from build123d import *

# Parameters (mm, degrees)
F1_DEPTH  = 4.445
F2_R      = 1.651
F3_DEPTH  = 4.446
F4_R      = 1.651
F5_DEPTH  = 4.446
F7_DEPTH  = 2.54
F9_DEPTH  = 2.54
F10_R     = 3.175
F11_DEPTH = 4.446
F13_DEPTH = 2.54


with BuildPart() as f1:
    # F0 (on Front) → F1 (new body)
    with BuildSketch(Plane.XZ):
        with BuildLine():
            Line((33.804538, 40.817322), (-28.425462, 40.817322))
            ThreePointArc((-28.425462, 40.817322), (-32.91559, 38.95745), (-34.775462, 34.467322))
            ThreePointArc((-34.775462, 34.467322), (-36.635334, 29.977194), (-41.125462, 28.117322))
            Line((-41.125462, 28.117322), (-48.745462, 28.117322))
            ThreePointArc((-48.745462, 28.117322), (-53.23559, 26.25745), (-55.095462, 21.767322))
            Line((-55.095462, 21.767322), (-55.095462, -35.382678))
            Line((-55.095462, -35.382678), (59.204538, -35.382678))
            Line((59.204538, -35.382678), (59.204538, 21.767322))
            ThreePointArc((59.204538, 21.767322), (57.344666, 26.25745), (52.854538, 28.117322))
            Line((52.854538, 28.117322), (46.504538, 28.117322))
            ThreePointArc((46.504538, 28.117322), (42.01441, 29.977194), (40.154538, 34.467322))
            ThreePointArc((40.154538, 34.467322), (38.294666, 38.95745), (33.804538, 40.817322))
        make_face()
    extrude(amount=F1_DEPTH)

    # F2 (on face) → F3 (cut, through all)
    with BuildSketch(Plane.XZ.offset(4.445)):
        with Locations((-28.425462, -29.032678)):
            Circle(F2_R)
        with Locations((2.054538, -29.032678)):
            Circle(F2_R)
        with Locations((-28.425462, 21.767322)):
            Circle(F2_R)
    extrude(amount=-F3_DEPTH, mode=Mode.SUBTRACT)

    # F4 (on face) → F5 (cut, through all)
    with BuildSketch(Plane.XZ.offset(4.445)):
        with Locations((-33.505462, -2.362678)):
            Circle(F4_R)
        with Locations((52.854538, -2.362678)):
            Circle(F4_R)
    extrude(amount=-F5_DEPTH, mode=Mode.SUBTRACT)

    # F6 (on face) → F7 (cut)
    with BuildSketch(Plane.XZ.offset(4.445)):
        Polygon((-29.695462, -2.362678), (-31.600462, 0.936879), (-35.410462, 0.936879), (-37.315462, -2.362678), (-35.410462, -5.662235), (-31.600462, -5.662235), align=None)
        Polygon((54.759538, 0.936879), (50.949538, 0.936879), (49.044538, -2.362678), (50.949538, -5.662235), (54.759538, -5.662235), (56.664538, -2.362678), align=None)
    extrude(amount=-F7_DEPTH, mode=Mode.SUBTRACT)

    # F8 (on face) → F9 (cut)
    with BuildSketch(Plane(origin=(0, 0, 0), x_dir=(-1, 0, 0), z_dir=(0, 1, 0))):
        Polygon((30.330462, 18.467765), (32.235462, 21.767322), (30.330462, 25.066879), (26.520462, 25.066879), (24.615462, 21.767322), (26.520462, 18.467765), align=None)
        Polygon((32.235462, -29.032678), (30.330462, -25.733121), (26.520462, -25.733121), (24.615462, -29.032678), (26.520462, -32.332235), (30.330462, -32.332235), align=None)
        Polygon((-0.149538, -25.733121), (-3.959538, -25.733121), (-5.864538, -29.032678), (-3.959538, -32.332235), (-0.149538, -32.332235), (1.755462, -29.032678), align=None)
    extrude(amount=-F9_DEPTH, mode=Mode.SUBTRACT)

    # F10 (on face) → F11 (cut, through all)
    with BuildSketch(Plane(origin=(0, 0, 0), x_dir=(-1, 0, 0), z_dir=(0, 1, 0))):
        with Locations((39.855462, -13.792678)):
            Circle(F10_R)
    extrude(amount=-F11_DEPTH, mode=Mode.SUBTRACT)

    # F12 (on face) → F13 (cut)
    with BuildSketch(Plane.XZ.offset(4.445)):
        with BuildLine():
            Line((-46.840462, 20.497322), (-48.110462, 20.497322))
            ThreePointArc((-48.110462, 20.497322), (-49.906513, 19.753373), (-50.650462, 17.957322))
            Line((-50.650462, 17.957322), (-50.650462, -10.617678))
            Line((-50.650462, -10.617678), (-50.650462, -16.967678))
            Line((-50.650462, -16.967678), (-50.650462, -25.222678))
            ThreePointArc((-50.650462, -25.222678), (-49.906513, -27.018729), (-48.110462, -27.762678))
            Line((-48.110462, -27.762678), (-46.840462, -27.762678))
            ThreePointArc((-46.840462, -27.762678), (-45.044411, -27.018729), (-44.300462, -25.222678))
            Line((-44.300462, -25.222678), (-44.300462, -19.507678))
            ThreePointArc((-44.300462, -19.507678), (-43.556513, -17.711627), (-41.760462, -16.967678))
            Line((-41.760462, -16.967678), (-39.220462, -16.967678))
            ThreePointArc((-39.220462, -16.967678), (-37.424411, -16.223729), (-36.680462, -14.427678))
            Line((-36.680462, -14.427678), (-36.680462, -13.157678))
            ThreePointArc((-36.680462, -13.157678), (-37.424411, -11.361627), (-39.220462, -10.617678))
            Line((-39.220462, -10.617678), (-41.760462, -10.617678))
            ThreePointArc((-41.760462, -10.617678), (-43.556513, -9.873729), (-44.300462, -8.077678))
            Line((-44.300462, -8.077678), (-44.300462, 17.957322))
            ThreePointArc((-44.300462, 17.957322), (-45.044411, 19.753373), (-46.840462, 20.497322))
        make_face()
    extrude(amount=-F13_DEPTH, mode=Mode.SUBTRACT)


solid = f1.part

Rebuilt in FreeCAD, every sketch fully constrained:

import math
import FreeCAD as App
import Part
import Sketcher

V = App.Vector
Q = App.Units.Quantity

doc = App.newDocument("Part")
body = doc.addObject("PartDesign::Body", "Body")

# Sketch on XZ plane
sketch1 = doc.addObject("Sketcher::SketchObject", "Sketch")
body.addObject(sketch1)
sketch1.AttachmentSupport = (doc.XZ_Plane, [""])
sketch1.MapMode = "FlatFace"
sketch1.addGeometry([
    Part.LineSegment(V(34, 41, 0), V(-28, 41, 0)),  # 0
    Part.ArcOfCircle(Part.Circle(V(-28, 34, 0), V(0, 0, 1), 6), math.radians(90), math.radians(180)),  # 1
    Part.ArcOfCircle(Part.Circle(V(-41, 34, 0), V(0, 0, 1), 6), math.radians(-90), math.radians(0)),  # 2
    Part.LineSegment(V(-41, 28, 0), V(-49, 28, 0)),  # 3
    Part.ArcOfCircle(Part.Circle(V(-49, 22, 0), V(0, 0, 1), 6), math.radians(90), math.radians(180)),  # 4
    Part.LineSegment(V(-55, 22, 0), V(-55, -35, 0)),  # 5
    Part.LineSegment(V(-55, -35, 0), V(59, -35, 0)),  # 6
    Part.LineSegment(V(59, -35, 0), V(59, 22, 0)),  # 7
    Part.ArcOfCircle(Part.Circle(V(53, 22, 0), V(0, 0, 1), 6), math.radians(0), math.radians(90)),  # 8
    Part.LineSegment(V(53, 28, 0), V(47, 28, 0)),  # 9
    Part.ArcOfCircle(Part.Circle(V(47, 34, 0), V(0, 0, 1), 6), math.radians(-180), math.radians(-90)),  # 10
    Part.ArcOfCircle(Part.Circle(V(34, 34, 0), V(0, 0, 1), 6), math.radians(0), math.radians(90)),  # 11
], False)
sketch1.addConstraint([
    Sketcher.Constraint("Tangent", 0, 2, 1, 1),
    Sketcher.Constraint("Tangent", 1, 2, 2, 2),
    Sketcher.Constraint("Tangent", 2, 1, 3, 1),
    Sketcher.Constraint("Tangent", 3, 2, 4, 1),
    Sketcher.Constraint("Tangent", 4, 2, 5, 1),
    Sketcher.Constraint("Coincident", 5, 2, 6, 1),
    Sketcher.Constraint("Coincident", 6, 2, 7, 1),
    Sketcher.Constraint("Tangent", 7, 2, 8, 1),
    Sketcher.Constraint("Tangent", 8, 2, 9, 1),
    Sketcher.Constraint("Tangent", 9, 2, 10, 2),
    Sketcher.Constraint("Tangent", 10, 1, 11, 1),
    Sketcher.Constraint("Tangent", 11, 2, 0, 1),
    Sketcher.Constraint("Horizontal", 0),
    Sketcher.Constraint("Horizontal", 3),
    Sketcher.Constraint("Vertical", 5),
    Sketcher.Constraint("Horizontal", 6),
    Sketcher.Constraint("Vertical", 7),
    Sketcher.Constraint("Horizontal", 9),
    Sketcher.Constraint("Equal", 1, 2),
    Sketcher.Constraint("Equal", 2, 4),
    Sketcher.Constraint("Equal", 4, 8),
    Sketcher.Constraint("Equal", 8, 10),
    Sketcher.Constraint("Equal", 10, 11),
    Sketcher.Constraint("Horizontal", 1, 3, 2, 3),
    Sketcher.Constraint("Horizontal", 4, 3, 8, 3),
    Sketcher.Constraint("Radius", 1, Q("0.25 in")),
    Sketcher.Constraint("DistanceX", 3, 2, 3, 1, Q("0.3 in")),
    Sketcher.Constraint("DistanceX", 6, 1, 6, 2, Q("4.5 in")),
    Sketcher.Constraint("DistanceX", 11, 3, 6, 2, Q("1 in")),
    Sketcher.Constraint("DistanceY", 5, 2, 5, 1, Q("2.25 in")),
    Sketcher.Constraint("DistanceX", 1, 3, -1, 1, Q("28.425462 mm")),
    Sketcher.Constraint("DistanceY", -1, 1, 1, 3, Q("34.467322 mm")),
])
pad1 = doc.addObject("PartDesign::Pad", "Pad")
body.addObject(pad1)
pad1.Profile = sketch1
pad1.Length = Q("0.175 in")

# Sketch on XZ plane
sketch2 = doc.addObject("Sketcher::SketchObject", "Sketch001")
body.addObject(sketch2)
sketch2.AttachmentSupport = (doc.XZ_Plane, [""])
sketch2.MapMode = "FlatFace"
sketch2.AttachmentOffset = App.Placement(V(0, 0, 0.175 * 25.4), App.Rotation())
sketch2.addGeometry([
    Part.Circle(V(-28.4, -29, 0), V(0, 0, 1), 1.7),
    Part.Circle(V(2.1, -29, 0), V(0, 0, 1), 1.7),
    Part.Circle(V(-28.4, 21.8, 0), V(0, 0, 1), 1.7),
], False)
sketch2.addConstraint([
    Sketcher.Constraint("Equal", 0, 1),
    Sketcher.Constraint("Equal", 1, 2),
    Sketcher.Constraint("Horizontal", 0, 3, 1, 3),
    Sketcher.Constraint("Vertical", 0, 3, 2, 3),
    Sketcher.Constraint("Diameter", 0, Q("0.13 in")),
    Sketcher.Constraint("DistanceY", 0, 3, 2, 3, Q("2 in")),
    Sketcher.Constraint("DistanceX", 0, 3, 1, 3, Q("1.2 in")),
    Sketcher.Constraint("DistanceX", 0, 3, -1, 1, Q("28.425462 mm")),
    Sketcher.Constraint("DistanceY", 0, 3, -1, 1, Q("29.032678 mm")),
])
pocket1 = doc.addObject("PartDesign::Pocket", "Pocket")
body.addObject(pocket1)
pocket1.Profile = sketch2
pocket1.Type = "ThroughAll"

# Sketch on XZ plane
sketch3 = doc.addObject("Sketcher::SketchObject", "Sketch002")
body.addObject(sketch3)
sketch3.AttachmentSupport = (doc.XZ_Plane, [""])
sketch3.MapMode = "FlatFace"
sketch3.AttachmentOffset = App.Placement(V(0, 0, 0.175 * 25.4), App.Rotation())
sketch3.addGeometry([
    Part.Circle(V(-33.5, -2.4, 0), V(0, 0, 1), 1.7),
    Part.Circle(V(52.9, -2.4, 0), V(0, 0, 1), 1.7),
], False)
sketch3.addConstraint([
    Sketcher.Constraint("Equal", 0, 1),
    Sketcher.Constraint("Horizontal", 0, 3, 1, 3),
    Sketcher.Constraint("Diameter", 0, Q("0.13 in")),
    Sketcher.Constraint("DistanceX", 0, 3, 1, 3, Q("3.4 in")),
    Sketcher.Constraint("DistanceX", 0, 3, -1, 1, Q("33.505462 mm")),
    Sketcher.Constraint("DistanceY", 0, 3, -1, 1, Q("2.362678 mm")),
])
pocket2 = doc.addObject("PartDesign::Pocket", "Pocket001")
body.addObject(pocket2)
pocket2.Profile = sketch3
pocket2.Type = "ThroughAll"

# Sketch on XZ plane
sketch4 = doc.addObject("Sketcher::SketchObject", "Sketch003")
body.addObject(sketch4)
sketch4.AttachmentSupport = (doc.XZ_Plane, [""])
sketch4.MapMode = "FlatFace"
sketch4.AttachmentOffset = App.Placement(V(0, 0, 0.175 * 25.4), App.Rotation())
sketch4.addGeometry([
    Part.LineSegment(V(-29.7, -2.4, 0), V(-31.6, 0.9, 0)),  # 0
    Part.LineSegment(V(-31.6, 0.9, 0), V(-35.4, 0.9, 0)),  # 1
    Part.LineSegment(V(-35.4, 0.9, 0), V(-37.3, -2.4, 0)),  # 2
    Part.LineSegment(V(-37.3, -2.4, 0), V(-35.4, -5.7, 0)),  # 3
    Part.LineSegment(V(-35.4, -5.7, 0), V(-31.6, -5.7, 0)),  # 4
    Part.LineSegment(V(-31.6, -5.7, 0), V(-29.7, -2.4, 0)),  # 5
    Part.LineSegment(V(54.8, 0.9, 0), V(50.9, 0.9, 0)),  # 6
    Part.LineSegment(V(50.9, 0.9, 0), V(49, -2.4, 0)),  # 7
    Part.LineSegment(V(49, -2.4, 0), V(50.9, -5.7, 0)),  # 8
    Part.LineSegment(V(50.9, -5.7, 0), V(54.8, -5.7, 0)),  # 9
    Part.LineSegment(V(54.8, -5.7, 0), V(56.7, -2.4, 0)),  # 10
    Part.LineSegment(V(56.7, -2.4, 0), V(54.8, 0.9, 0)),  # 11
], False)
sketch4.addConstraint([
    Sketcher.Constraint("Coincident", 0, 2, 1, 1),
    Sketcher.Constraint("Coincident", 1, 2, 2, 1),
    Sketcher.Constraint("Coincident", 2, 2, 3, 1),
    Sketcher.Constraint("Coincident", 3, 2, 4, 1),
    Sketcher.Constraint("Coincident", 4, 2, 5, 1),
    Sketcher.Constraint("Coincident", 5, 2, 0, 1),
    Sketcher.Constraint("Coincident", 6, 2, 7, 1),
    Sketcher.Constraint("Coincident", 7, 2, 8, 1),
    Sketcher.Constraint("Coincident", 8, 2, 9, 1),
    Sketcher.Constraint("Coincident", 9, 2, 10, 1),
    Sketcher.Constraint("Coincident", 10, 2, 11, 1),
    Sketcher.Constraint("Coincident", 11, 2, 6, 1),
    Sketcher.Constraint("Horizontal", 1),
    Sketcher.Constraint("Horizontal", 4),
    Sketcher.Constraint("Horizontal", 6),
    Sketcher.Constraint("Horizontal", 9),
    Sketcher.Constraint("Parallel", 0, 3),
    Sketcher.Constraint("Parallel", 2, 5),
    Sketcher.Constraint("Parallel", 5, 7),
    Sketcher.Constraint("Parallel", 3, 8),
    Sketcher.Constraint("Parallel", 7, 10),
    Sketcher.Constraint("Parallel", 8, 11),
    Sketcher.Constraint("Horizontal", 2, 2, 5, 2),
    Sketcher.Constraint("Horizontal", 1, 2, 6, 2),
    Sketcher.Constraint("Horizontal", 5, 2, 7, 2),
    Sketcher.Constraint("Horizontal", 4, 2, 8, 2),
    Sketcher.Constraint("Horizontal", 7, 2, 10, 2),
    Sketcher.Constraint("Vertical", 1, 2, 3, 2),
    Sketcher.Constraint("Vertical", 0, 2, 4, 2),
    Sketcher.Constraint("Equal", 4, 6),
    Sketcher.Constraint("Angle", 0, Q("119.999998 deg")),
    Sketcher.Constraint("DistanceX", 1, 2, 1, 1, Q("0.15 in")),
    Sketcher.Constraint("DistanceX", 2, 2, 5, 2, Q("0.3 in")),
    Sketcher.Constraint("DistanceX", 1, 2, 6, 2, Q("3.4 in")),
    Sketcher.Constraint("DistanceX", 0, 2, -1, 1, Q("31.600462 mm")),
    Sketcher.Constraint("DistanceY", -1, 1, 0, 2, Q("0.936879 mm")),
])
pocket3 = doc.addObject("PartDesign::Pocket", "Pocket002")
body.addObject(pocket3)
pocket3.Profile = sketch4
pocket3.Length = Q("0.1 in")

# Sketch on XZ plane
sketch5 = doc.addObject("Sketcher::SketchObject", "Sketch004")
body.addObject(sketch5)
sketch5.AttachmentSupport = (doc.XZ_Plane, [""])
sketch5.MapMode = "FlatFace"
sketch5.addGeometry([
    Part.LineSegment(V(-30.3, 18.5, 0), V(-32.2, 21.8, 0)),  # 0
    Part.LineSegment(V(-32.2, 21.8, 0), V(-30.3, 25.1, 0)),  # 1
    Part.LineSegment(V(-30.3, 25.1, 0), V(-26.5, 25.1, 0)),  # 2
    Part.LineSegment(V(-26.5, 25.1, 0), V(-24.6, 21.8, 0)),  # 3
    Part.LineSegment(V(-24.6, 21.8, 0), V(-26.5, 18.5, 0)),  # 4
    Part.LineSegment(V(-26.5, 18.5, 0), V(-30.3, 18.5, 0)),  # 5
    Part.LineSegment(V(-32.2, -29, 0), V(-30.3, -25.7, 0)),  # 6
    Part.LineSegment(V(-30.3, -25.7, 0), V(-26.5, -25.7, 0)),  # 7
    Part.LineSegment(V(-26.5, -25.7, 0), V(-24.6, -29, 0)),  # 8
    Part.LineSegment(V(-24.6, -29, 0), V(-26.5, -32.3, 0)),  # 9
    Part.LineSegment(V(-26.5, -32.3, 0), V(-30.3, -32.3, 0)),  # 10
    Part.LineSegment(V(-30.3, -32.3, 0), V(-32.2, -29, 0)),  # 11
    Part.LineSegment(V(0.1, -25.7, 0), V(4, -25.7, 0)),  # 12
    Part.LineSegment(V(4, -25.7, 0), V(5.9, -29, 0)),  # 13
    Part.LineSegment(V(5.9, -29, 0), V(4, -32.3, 0)),  # 14
    Part.LineSegment(V(4, -32.3, 0), V(0.1, -32.3, 0)),  # 15
    Part.LineSegment(V(0.1, -32.3, 0), V(-1.8, -29, 0)),  # 16
    Part.LineSegment(V(-1.8, -29, 0), V(0.1, -25.7, 0)),  # 17
], False)
sketch5.addConstraint([
    Sketcher.Constraint("Coincident", 0, 2, 1, 1),
    Sketcher.Constraint("Coincident", 1, 2, 2, 1),
    Sketcher.Constraint("Coincident", 2, 2, 3, 1),
    Sketcher.Constraint("Coincident", 3, 2, 4, 1),
    Sketcher.Constraint("Coincident", 4, 2, 5, 1),
    Sketcher.Constraint("Coincident", 5, 2, 0, 1),
    Sketcher.Constraint("Coincident", 6, 2, 7, 1),
    Sketcher.Constraint("Coincident", 7, 2, 8, 1),
    Sketcher.Constraint("Coincident", 8, 2, 9, 1),
    Sketcher.Constraint("Coincident", 9, 2, 10, 1),
    Sketcher.Constraint("Coincident", 10, 2, 11, 1),
    Sketcher.Constraint("Coincident", 11, 2, 6, 1),
    Sketcher.Constraint("Coincident", 12, 2, 13, 1),
    Sketcher.Constraint("Coincident", 13, 2, 14, 1),
    Sketcher.Constraint("Coincident", 14, 2, 15, 1),
    Sketcher.Constraint("Coincident", 15, 2, 16, 1),
    Sketcher.Constraint("Coincident", 16, 2, 17, 1),
    Sketcher.Constraint("Coincident", 17, 2, 12, 1),
    Sketcher.Constraint("Horizontal", 2),
    Sketcher.Constraint("Horizontal", 5),
    Sketcher.Constraint("Horizontal", 7),
    Sketcher.Constraint("Horizontal", 10),
    Sketcher.Constraint("Horizontal", 12),
    Sketcher.Constraint("Horizontal", 15),
    Sketcher.Constraint("Parallel", 0, 3),
    Sketcher.Constraint("Parallel", 1, 4),
    Sketcher.Constraint("Parallel", 4, 6),
    Sketcher.Constraint("Parallel", 3, 8),
    Sketcher.Constraint("Parallel", 6, 9),
    Sketcher.Constraint("Parallel", 8, 11),
    Sketcher.Constraint("Parallel", 11, 13),
    Sketcher.Constraint("Parallel", 9, 14),
    Sketcher.Constraint("Parallel", 13, 16),
    Sketcher.Constraint("Parallel", 14, 17),
    Sketcher.Constraint("Horizontal", 0, 2, 3, 2),
    Sketcher.Constraint("Horizontal", 8, 2, 11, 2),
    Sketcher.Constraint("Horizontal", 7, 2, 12, 2),
    Sketcher.Constraint("Horizontal", 11, 2, 13, 2),
    Sketcher.Constraint("Horizontal", 10, 2, 14, 2),
    Sketcher.Constraint("Horizontal", 13, 2, 16, 2),
    Sketcher.Constraint("Vertical", 2, 2, 4, 2),
    Sketcher.Constraint("Vertical", 1, 2, 5, 2),
    Sketcher.Constraint("Vertical", 5, 2, 6, 2),
    Sketcher.Constraint("Vertical", 4, 2, 7, 2),
    Sketcher.Constraint("Vertical", 3, 2, 8, 2),
    Sketcher.Constraint("Vertical", 7, 2, 9, 2),
    Sketcher.Constraint("Equal", 10, 12),
    Sketcher.Constraint("Angle", 0, Q("119.999998 deg")),
    Sketcher.Constraint("DistanceY", 6, 2, 1, 2, Q("2 in")),
    Sketcher.Constraint("DistanceX", 2, 1, 2, 2, Q("0.15 in")),
    Sketcher.Constraint("DistanceX", 0, 2, 3, 2, Q("0.3 in")),
    Sketcher.Constraint("DistanceX", 7, 2, 12, 2, Q("1.2 in")),
    Sketcher.Constraint("DistanceX", 0, 2, -1, 1, Q("32.235462 mm")),
    Sketcher.Constraint("DistanceY", -1, 1, 0, 2, Q("21.767322 mm")),
])
pocket4 = doc.addObject("PartDesign::Pocket", "Pocket003")
body.addObject(pocket4)
pocket4.Profile = sketch5
pocket4.Length = Q("0.1 in")
pocket4.Reversed = True

# Sketch on XZ plane
sketch6 = doc.addObject("Sketcher::SketchObject", "Sketch005")
body.addObject(sketch6)
sketch6.AttachmentSupport = (doc.XZ_Plane, [""])
sketch6.MapMode = "FlatFace"
sketch6.addGeometry(Part.Circle(V(-39.9, -13.8, 0), V(0, 0, 1), 3.2), False)
sketch6.addConstraint([
    Sketcher.Constraint("Diameter", 0, Q("0.25 in")),
    Sketcher.Constraint("DistanceX", 0, 3, -1, 1, Q("39.855462 mm")),
    Sketcher.Constraint("DistanceY", 0, 3, -1, 1, Q("13.792678 mm")),
])
pocket5 = doc.addObject("PartDesign::Pocket", "Pocket004")
body.addObject(pocket5)
pocket5.Profile = sketch6
pocket5.Type = "ThroughAll"
pocket5.Reversed = True

# Sketch on XZ plane
sketch7 = doc.addObject("Sketcher::SketchObject", "Sketch006")
body.addObject(sketch7)
sketch7.AttachmentSupport = (doc.XZ_Plane, [""])
sketch7.MapMode = "FlatFace"
sketch7.AttachmentOffset = App.Placement(V(0, 0, 0.175 * 25.4), App.Rotation())
sketch7.addGeometry([
    Part.LineSegment(V(-46.8, 20.5, 0), V(-48.1, 20.5, 0)),  # 0
    Part.ArcOfCircle(Part.Circle(V(-48.1, 18, 0), V(0, 0, 1), 2.5), math.radians(90), math.radians(180)),  # 1
    Part.LineSegment(V(-50.7, 18, 0), V(-50.7, -25.2, 0)),  # 2
    Part.ArcOfCircle(Part.Circle(V(-48.1, -25.2, 0), V(0, 0, 1), 2.5), math.radians(-180), math.radians(-90)),  # 3
    Part.LineSegment(V(-48.1, -27.8, 0), V(-46.8, -27.8, 0)),  # 4
    Part.ArcOfCircle(Part.Circle(V(-46.8, -25.2, 0), V(0, 0, 1), 2.5), math.radians(-90), math.radians(0)),  # 5
    Part.LineSegment(V(-44.3, -25.2, 0), V(-44.3, -19.5, 0)),  # 6
    Part.ArcOfCircle(Part.Circle(V(-41.8, -19.5, 0), V(0, 0, 1), 2.5), math.radians(90), math.radians(180)),  # 7
    Part.LineSegment(V(-41.8, -17, 0), V(-39.2, -17, 0)),  # 8
    Part.ArcOfCircle(Part.Circle(V(-39.2, -14.4, 0), V(0, 0, 1), 2.5), math.radians(-90), math.radians(0)),  # 9
    Part.LineSegment(V(-36.7, -14.4, 0), V(-36.7, -13.2, 0)),  # 10
    Part.ArcOfCircle(Part.Circle(V(-39.2, -13.2, 0), V(0, 0, 1), 2.5), math.radians(0), math.radians(90)),  # 11
    Part.LineSegment(V(-39.2, -10.6, 0), V(-41.8, -10.6, 0)),  # 12
    Part.ArcOfCircle(Part.Circle(V(-41.8, -8.1, 0), V(0, 0, 1), 2.5), math.radians(-180), math.radians(-90)),  # 13
    Part.LineSegment(V(-44.3, -8.1, 0), V(-44.3, 18, 0)),  # 14
    Part.ArcOfCircle(Part.Circle(V(-46.8, 18, 0), V(0, 0, 1), 2.5), math.radians(0), math.radians(90)),  # 15
], False)
sketch7.addConstraint([
    Sketcher.Constraint("Tangent", 0, 2, 1, 1),
    Sketcher.Constraint("Tangent", 1, 2, 2, 1),
    Sketcher.Constraint("Tangent", 2, 2, 3, 1),
    Sketcher.Constraint("Tangent", 3, 2, 4, 1),
    Sketcher.Constraint("Tangent", 4, 2, 5, 1),
    Sketcher.Constraint("Tangent", 5, 2, 6, 1),
    Sketcher.Constraint("Tangent", 6, 2, 7, 2),
    Sketcher.Constraint("Tangent", 7, 1, 8, 1),
    Sketcher.Constraint("Tangent", 8, 2, 9, 1),
    Sketcher.Constraint("Tangent", 9, 2, 10, 1),
    Sketcher.Constraint("Tangent", 10, 2, 11, 1),
    Sketcher.Constraint("Tangent", 11, 2, 12, 1),
    Sketcher.Constraint("Tangent", 12, 2, 13, 2),
    Sketcher.Constraint("Tangent", 13, 1, 14, 1),
    Sketcher.Constraint("Tangent", 14, 2, 15, 1),
    Sketcher.Constraint("Tangent", 15, 2, 0, 1),
    Sketcher.Constraint("Horizontal", 0),
    Sketcher.Constraint("Vertical", 2),
    Sketcher.Constraint("Horizontal", 4),
    Sketcher.Constraint("Vertical", 6),
    Sketcher.Constraint("Horizontal", 8),
    Sketcher.Constraint("Vertical", 10),
    Sketcher.Constraint("Horizontal", 12),
    Sketcher.Constraint("Vertical", 14),
    Sketcher.Constraint("Equal", 1, 3),
    Sketcher.Constraint("Equal", 3, 5),
    Sketcher.Constraint("Equal", 5, 7),
    Sketcher.Constraint("Equal", 7, 9),
    Sketcher.Constraint("Equal", 9, 11),
    Sketcher.Constraint("Equal", 11, 13),
    Sketcher.Constraint("Equal", 13, 15),
    Sketcher.Constraint("Vertical", 7, 3, 13, 3),
    Sketcher.Constraint("Equal", 4, 10),
    Sketcher.Constraint("Radius", 1, Q("0.1 in")),
    Sketcher.Constraint("DistanceX", 8, 1, 8, 2, Q("0.1 in")),
    Sketcher.Constraint("DistanceY", 2, 2, 2, 1, Q("1.7 in")),
    Sketcher.Constraint("DistanceX", 0, 2, 0, 1, Q("0.05 in")),
    Sketcher.Constraint("DistanceY", 6, 1, 6, 2, Q("0.225 in")),
    Sketcher.Constraint("DistanceX", 1, 3, -1, 1, Q("48.110461 mm")),
    Sketcher.Constraint("DistanceY", -1, 1, 1, 3, Q("17.957321 mm")),
])
pocket6 = doc.addObject("PartDesign::Pocket", "Pocket005")
body.addObject(pocket6)
pocket6.Profile = sketch7
pocket6.Length = Q("0.1 in")

doc.recompute()
